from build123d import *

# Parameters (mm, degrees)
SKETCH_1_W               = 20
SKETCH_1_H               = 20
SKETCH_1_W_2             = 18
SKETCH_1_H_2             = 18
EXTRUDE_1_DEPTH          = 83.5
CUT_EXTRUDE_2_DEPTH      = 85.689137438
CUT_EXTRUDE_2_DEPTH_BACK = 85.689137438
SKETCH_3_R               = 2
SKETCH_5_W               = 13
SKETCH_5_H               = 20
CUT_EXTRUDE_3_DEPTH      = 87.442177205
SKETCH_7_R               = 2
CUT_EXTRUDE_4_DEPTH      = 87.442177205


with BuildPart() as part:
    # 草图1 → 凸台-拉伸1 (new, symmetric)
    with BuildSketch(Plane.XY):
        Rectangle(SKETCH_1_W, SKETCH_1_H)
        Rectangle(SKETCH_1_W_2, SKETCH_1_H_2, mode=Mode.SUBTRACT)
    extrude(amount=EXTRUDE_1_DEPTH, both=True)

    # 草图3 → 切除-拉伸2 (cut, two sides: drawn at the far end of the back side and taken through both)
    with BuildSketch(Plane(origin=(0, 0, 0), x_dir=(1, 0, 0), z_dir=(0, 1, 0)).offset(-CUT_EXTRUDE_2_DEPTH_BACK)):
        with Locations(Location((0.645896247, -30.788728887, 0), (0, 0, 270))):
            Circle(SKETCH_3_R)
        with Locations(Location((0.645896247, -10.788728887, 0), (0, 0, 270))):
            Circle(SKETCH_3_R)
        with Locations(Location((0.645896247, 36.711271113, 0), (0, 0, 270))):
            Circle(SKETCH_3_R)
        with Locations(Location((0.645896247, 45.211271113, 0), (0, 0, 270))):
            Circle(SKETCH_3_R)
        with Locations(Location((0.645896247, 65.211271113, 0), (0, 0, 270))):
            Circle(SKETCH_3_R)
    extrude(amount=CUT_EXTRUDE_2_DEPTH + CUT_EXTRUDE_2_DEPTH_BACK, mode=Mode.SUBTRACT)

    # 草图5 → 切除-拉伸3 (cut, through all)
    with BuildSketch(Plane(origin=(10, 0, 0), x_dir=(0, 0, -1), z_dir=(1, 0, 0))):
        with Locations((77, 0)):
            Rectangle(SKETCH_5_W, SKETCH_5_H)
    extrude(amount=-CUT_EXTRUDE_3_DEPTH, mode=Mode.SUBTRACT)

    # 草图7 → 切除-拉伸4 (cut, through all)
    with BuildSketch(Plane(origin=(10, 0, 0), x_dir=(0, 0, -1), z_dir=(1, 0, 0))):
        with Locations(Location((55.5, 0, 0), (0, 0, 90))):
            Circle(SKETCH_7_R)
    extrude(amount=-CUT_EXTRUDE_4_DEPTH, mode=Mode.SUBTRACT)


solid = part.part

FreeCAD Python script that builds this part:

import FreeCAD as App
import Part
import Sketcher

doc = App.newDocument("Part")
body = doc.addObject("PartDesign::Body", "Body")

# Sketch on XY plane
sketch1 = body.newObject("Sketcher::SketchObject", "Sketch")
sketch1.AttachmentSupport = (doc.getObject("XY_Plane"), [""])
sketch1.MapMode = "FlatFace"
sketch1.addGeometry([
    Part.LineSegment(App.Vector(-10, 10, 0), App.Vector(-10, -10, 0)),  # 0
    Part.LineSegment(App.Vector(-10, -10, 0), App.Vector(10, -10, 0)),  # 1
    Part.LineSegment(App.Vector(10, -10, 0), App.Vector(10, 10, 0)),  # 2
    Part.LineSegment(App.Vector(10, 10, 0), App.Vector(-10, 10, 0)),  # 3
    Part.LineSegment(App.Vector(9, -9, 0), App.Vector(-9, -9, 0)),  # 4
    Part.LineSegment(App.Vector(-9, -9, 0), App.Vector(-9, 9, 0)),  # 5
    Part.LineSegment(App.Vector(-9, 9, 0), App.Vector(9, 9, 0)),  # 6
    Part.LineSegment(App.Vector(9, 9, 0), App.Vector(9, -9, 0)),  # 7
], False)
sketch1.addConstraint([
    Sketcher.Constraint("Coincident", 0, 2, 1, 1),
    Sketcher.Constraint("Coincident", 1, 2, 2, 1),
    Sketcher.Constraint("Coincident", 2, 2, 3, 1),
    Sketcher.Constraint("Coincident", 3, 2, 0, 1),
    Sketcher.Constraint("Coincident", 4, 2, 5, 1),
    Sketcher.Constraint("Coincident", 5, 2, 6, 1),
    Sketcher.Constraint("Coincident", 6, 2, 7, 1),
    Sketcher.Constraint("Coincident", 7, 2, 4, 1),
    Sketcher.Constraint("Vertical", 0),
    Sketcher.Constraint("Horizontal", 1),
    Sketcher.Constraint("Vertical", 2),
    Sketcher.Constraint("Horizontal", 3),
    Sketcher.Constraint("Horizontal", 4),
    Sketcher.Constraint("Vertical", 5),
    Sketcher.Constraint("Horizontal", 6),
    Sketcher.Constraint("Vertical", 7),
    Sketcher.Constraint("Symmetric", 0, 2, 2, 2, -1, 1),
    Sketcher.Constraint("Symmetric", 4, 2, 6, 2, -1, 1),
    Sketcher.Constraint("Equal", 3, 0),
    Sketcher.Constraint("Equal", 6, 5),
    Sketcher.Constraint("DistanceX", 1, 1, 1, 2, 20.0),
    Sketcher.Constraint("DistanceX", 4, 2, 4, 1, 18.0),
])
pad1 = body.newObject("PartDesign::Pad", "Pad")
pad1.Profile = sketch1
pad1.Length = 167
pad1.Midplane = True

# Sketch on XZ plane
sketch2 = body.newObject("Sketcher::SketchObject", "Sketch001")
sketch2.AttachmentSupport = (doc.getObject("XZ_Plane"), [""])
sketch2.MapMode = "FlatFace"
sketch2.addGeometry([
    Part.Circle(App.Vector(0.6, 30.8, 0), App.Vector(0, 0, 1), 2),  # 0
    Part.Circle(App.Vector(0.6, 10.8, 0), App.Vector(0, 0, 1), 2),  # 1
    Part.Circle(App.Vector(0.6, -36.7, 0), App.Vector(0, 0, 1), 2),  # 2
    Part.Circle(App.Vector(0.6, -45.2, 0), App.Vector(0, 0, 1), 2),  # 3
    Part.Circle(App.Vector(0.6, -65.2, 0), App.Vector(0, 0, 1), 2),  # 4
], False)
sketch2.addConstraint([
    Sketcher.Constraint("Equal", 0, 1),
    Sketcher.Constraint("Equal", 1, 2),
    Sketcher.Constraint("Equal", 2, 3),
    Sketcher.Constraint("Equal", 3, 4),
    Sketcher.Constraint("Vertical", 0, 3, 1, 3),
    Sketcher.Constraint("Vertical", 1, 3, 2, 3),
    Sketcher.Constraint("Vertical", 2, 3, 3, 3),
    Sketcher.Constraint("Vertical", 3, 3, 4, 3),
    Sketcher.Constraint("Diameter", 0, 4.0),
    Sketcher.Constraint("DistanceY", 1, 3, 0, 3, 20.0),
    Sketcher.Constraint("DistanceY", 3, 3, 1, 3, 56.0),
    Sketcher.Constraint("DistanceY", 4, 3, 3, 3, 20.0),
    Sketcher.Constraint("DistanceY", 2, 3, 1, 3, 47.5),
    Sketcher.Constraint("DistanceY", -1, 1, 0, 3, 30.788729),
    Sketcher.Constraint("DistanceX", -1, 1, 0, 3, 0.645896),
])
pocket1 = body.newObject("PartDesign::Pocket", "Pocket")
pocket1.Profile = sketch2
pocket1.Type = "ThroughAll"
pocket1.Midplane = True

# Sketch on YZ plane
sketch3 = body.newObject("Sketcher::SketchObject", "Sketch002")
sketch3.AttachmentSupport = (doc.getObject("YZ_Plane"), [""])
sketch3.MapMode = "FlatFace"
sketch3.AttachmentOffset = App.Placement(App.Vector(0, 0, 10), App.Rotation())
sketch3.addGeometry([
    Part.LineSegment(App.Vector(10, -70, 0), App.Vector(-10, -70, 0)),
    Part.LineSegment(App.Vector(-10, -70, 0), App.Vector(-10, -84, 0)),
    Part.LineSegment(App.Vector(-10, -84, 0), App.Vector(10, -84, 0)),
    Part.LineSegment(App.Vector(10, -84, 0), App.Vector(10, -70, 0)),
], False)
sketch3.addConstraint([
    Sketcher.Constraint("Coincident", 0, 2, 1, 1),
    Sketcher.Constraint("Coincident", 1, 2, 2, 1),
    Sketcher.Constraint("Coincident", 2, 2, 3, 1),
    Sketcher.Constraint("Coincident", 3, 2, 0, 1),
    Sketcher.Constraint("Horizontal", 0),
    Sketcher.Constraint("Vertical", 1),
    Sketcher.Constraint("Horizontal", 2),
    Sketcher.Constraint("Vertical", 3),
    Sketcher.Constraint("DistanceX", 0, 2, 0, 1, 20.0),
    Sketcher.Constraint("DistanceY", 1, 2, 1, 1, 13.0),
    Sketcher.Constraint("DistanceX", 0, 2, -1, 1, 10.0),
    Sketcher.Constraint("DistanceY", 0, 2, -1, 1, 70.5),
])
pocket2 = body.newObject("PartDesign::Pocket", "Pocket001")
pocket2.Profile = sketch3
pocket2.Type = "ThroughAll"

# Sketch on YZ plane
sketch4 = body.newObject("Sketcher::SketchObject", "Sketch003")
sketch4.AttachmentSupport = (doc.getObject("YZ_Plane"), [""])
sketch4.MapMode = "FlatFace"
sketch4.AttachmentOffset = App.Placement(App.Vector(0, 0, 10), App.Rotation())
sketch4.addGeometry(Part.Circle(App.Vector(0, -55.5, 0), App.Vector(0, 0, 1), 2), False)
sketch4.addConstraint([
    Sketcher.Constraint("PointOnObject", 0, 3, -2),
    Sketcher.Constraint("Diameter", 0, 4.0),
    Sketcher.Constraint("DistanceY", 0, 3, -1, 1, 55.5),
])
pocket3 = body.newObject("PartDesign::Pocket", "Pocket002")
pocket3.Profile = sketch4
pocket3.Type = "ThroughAll"

doc.recompute()
